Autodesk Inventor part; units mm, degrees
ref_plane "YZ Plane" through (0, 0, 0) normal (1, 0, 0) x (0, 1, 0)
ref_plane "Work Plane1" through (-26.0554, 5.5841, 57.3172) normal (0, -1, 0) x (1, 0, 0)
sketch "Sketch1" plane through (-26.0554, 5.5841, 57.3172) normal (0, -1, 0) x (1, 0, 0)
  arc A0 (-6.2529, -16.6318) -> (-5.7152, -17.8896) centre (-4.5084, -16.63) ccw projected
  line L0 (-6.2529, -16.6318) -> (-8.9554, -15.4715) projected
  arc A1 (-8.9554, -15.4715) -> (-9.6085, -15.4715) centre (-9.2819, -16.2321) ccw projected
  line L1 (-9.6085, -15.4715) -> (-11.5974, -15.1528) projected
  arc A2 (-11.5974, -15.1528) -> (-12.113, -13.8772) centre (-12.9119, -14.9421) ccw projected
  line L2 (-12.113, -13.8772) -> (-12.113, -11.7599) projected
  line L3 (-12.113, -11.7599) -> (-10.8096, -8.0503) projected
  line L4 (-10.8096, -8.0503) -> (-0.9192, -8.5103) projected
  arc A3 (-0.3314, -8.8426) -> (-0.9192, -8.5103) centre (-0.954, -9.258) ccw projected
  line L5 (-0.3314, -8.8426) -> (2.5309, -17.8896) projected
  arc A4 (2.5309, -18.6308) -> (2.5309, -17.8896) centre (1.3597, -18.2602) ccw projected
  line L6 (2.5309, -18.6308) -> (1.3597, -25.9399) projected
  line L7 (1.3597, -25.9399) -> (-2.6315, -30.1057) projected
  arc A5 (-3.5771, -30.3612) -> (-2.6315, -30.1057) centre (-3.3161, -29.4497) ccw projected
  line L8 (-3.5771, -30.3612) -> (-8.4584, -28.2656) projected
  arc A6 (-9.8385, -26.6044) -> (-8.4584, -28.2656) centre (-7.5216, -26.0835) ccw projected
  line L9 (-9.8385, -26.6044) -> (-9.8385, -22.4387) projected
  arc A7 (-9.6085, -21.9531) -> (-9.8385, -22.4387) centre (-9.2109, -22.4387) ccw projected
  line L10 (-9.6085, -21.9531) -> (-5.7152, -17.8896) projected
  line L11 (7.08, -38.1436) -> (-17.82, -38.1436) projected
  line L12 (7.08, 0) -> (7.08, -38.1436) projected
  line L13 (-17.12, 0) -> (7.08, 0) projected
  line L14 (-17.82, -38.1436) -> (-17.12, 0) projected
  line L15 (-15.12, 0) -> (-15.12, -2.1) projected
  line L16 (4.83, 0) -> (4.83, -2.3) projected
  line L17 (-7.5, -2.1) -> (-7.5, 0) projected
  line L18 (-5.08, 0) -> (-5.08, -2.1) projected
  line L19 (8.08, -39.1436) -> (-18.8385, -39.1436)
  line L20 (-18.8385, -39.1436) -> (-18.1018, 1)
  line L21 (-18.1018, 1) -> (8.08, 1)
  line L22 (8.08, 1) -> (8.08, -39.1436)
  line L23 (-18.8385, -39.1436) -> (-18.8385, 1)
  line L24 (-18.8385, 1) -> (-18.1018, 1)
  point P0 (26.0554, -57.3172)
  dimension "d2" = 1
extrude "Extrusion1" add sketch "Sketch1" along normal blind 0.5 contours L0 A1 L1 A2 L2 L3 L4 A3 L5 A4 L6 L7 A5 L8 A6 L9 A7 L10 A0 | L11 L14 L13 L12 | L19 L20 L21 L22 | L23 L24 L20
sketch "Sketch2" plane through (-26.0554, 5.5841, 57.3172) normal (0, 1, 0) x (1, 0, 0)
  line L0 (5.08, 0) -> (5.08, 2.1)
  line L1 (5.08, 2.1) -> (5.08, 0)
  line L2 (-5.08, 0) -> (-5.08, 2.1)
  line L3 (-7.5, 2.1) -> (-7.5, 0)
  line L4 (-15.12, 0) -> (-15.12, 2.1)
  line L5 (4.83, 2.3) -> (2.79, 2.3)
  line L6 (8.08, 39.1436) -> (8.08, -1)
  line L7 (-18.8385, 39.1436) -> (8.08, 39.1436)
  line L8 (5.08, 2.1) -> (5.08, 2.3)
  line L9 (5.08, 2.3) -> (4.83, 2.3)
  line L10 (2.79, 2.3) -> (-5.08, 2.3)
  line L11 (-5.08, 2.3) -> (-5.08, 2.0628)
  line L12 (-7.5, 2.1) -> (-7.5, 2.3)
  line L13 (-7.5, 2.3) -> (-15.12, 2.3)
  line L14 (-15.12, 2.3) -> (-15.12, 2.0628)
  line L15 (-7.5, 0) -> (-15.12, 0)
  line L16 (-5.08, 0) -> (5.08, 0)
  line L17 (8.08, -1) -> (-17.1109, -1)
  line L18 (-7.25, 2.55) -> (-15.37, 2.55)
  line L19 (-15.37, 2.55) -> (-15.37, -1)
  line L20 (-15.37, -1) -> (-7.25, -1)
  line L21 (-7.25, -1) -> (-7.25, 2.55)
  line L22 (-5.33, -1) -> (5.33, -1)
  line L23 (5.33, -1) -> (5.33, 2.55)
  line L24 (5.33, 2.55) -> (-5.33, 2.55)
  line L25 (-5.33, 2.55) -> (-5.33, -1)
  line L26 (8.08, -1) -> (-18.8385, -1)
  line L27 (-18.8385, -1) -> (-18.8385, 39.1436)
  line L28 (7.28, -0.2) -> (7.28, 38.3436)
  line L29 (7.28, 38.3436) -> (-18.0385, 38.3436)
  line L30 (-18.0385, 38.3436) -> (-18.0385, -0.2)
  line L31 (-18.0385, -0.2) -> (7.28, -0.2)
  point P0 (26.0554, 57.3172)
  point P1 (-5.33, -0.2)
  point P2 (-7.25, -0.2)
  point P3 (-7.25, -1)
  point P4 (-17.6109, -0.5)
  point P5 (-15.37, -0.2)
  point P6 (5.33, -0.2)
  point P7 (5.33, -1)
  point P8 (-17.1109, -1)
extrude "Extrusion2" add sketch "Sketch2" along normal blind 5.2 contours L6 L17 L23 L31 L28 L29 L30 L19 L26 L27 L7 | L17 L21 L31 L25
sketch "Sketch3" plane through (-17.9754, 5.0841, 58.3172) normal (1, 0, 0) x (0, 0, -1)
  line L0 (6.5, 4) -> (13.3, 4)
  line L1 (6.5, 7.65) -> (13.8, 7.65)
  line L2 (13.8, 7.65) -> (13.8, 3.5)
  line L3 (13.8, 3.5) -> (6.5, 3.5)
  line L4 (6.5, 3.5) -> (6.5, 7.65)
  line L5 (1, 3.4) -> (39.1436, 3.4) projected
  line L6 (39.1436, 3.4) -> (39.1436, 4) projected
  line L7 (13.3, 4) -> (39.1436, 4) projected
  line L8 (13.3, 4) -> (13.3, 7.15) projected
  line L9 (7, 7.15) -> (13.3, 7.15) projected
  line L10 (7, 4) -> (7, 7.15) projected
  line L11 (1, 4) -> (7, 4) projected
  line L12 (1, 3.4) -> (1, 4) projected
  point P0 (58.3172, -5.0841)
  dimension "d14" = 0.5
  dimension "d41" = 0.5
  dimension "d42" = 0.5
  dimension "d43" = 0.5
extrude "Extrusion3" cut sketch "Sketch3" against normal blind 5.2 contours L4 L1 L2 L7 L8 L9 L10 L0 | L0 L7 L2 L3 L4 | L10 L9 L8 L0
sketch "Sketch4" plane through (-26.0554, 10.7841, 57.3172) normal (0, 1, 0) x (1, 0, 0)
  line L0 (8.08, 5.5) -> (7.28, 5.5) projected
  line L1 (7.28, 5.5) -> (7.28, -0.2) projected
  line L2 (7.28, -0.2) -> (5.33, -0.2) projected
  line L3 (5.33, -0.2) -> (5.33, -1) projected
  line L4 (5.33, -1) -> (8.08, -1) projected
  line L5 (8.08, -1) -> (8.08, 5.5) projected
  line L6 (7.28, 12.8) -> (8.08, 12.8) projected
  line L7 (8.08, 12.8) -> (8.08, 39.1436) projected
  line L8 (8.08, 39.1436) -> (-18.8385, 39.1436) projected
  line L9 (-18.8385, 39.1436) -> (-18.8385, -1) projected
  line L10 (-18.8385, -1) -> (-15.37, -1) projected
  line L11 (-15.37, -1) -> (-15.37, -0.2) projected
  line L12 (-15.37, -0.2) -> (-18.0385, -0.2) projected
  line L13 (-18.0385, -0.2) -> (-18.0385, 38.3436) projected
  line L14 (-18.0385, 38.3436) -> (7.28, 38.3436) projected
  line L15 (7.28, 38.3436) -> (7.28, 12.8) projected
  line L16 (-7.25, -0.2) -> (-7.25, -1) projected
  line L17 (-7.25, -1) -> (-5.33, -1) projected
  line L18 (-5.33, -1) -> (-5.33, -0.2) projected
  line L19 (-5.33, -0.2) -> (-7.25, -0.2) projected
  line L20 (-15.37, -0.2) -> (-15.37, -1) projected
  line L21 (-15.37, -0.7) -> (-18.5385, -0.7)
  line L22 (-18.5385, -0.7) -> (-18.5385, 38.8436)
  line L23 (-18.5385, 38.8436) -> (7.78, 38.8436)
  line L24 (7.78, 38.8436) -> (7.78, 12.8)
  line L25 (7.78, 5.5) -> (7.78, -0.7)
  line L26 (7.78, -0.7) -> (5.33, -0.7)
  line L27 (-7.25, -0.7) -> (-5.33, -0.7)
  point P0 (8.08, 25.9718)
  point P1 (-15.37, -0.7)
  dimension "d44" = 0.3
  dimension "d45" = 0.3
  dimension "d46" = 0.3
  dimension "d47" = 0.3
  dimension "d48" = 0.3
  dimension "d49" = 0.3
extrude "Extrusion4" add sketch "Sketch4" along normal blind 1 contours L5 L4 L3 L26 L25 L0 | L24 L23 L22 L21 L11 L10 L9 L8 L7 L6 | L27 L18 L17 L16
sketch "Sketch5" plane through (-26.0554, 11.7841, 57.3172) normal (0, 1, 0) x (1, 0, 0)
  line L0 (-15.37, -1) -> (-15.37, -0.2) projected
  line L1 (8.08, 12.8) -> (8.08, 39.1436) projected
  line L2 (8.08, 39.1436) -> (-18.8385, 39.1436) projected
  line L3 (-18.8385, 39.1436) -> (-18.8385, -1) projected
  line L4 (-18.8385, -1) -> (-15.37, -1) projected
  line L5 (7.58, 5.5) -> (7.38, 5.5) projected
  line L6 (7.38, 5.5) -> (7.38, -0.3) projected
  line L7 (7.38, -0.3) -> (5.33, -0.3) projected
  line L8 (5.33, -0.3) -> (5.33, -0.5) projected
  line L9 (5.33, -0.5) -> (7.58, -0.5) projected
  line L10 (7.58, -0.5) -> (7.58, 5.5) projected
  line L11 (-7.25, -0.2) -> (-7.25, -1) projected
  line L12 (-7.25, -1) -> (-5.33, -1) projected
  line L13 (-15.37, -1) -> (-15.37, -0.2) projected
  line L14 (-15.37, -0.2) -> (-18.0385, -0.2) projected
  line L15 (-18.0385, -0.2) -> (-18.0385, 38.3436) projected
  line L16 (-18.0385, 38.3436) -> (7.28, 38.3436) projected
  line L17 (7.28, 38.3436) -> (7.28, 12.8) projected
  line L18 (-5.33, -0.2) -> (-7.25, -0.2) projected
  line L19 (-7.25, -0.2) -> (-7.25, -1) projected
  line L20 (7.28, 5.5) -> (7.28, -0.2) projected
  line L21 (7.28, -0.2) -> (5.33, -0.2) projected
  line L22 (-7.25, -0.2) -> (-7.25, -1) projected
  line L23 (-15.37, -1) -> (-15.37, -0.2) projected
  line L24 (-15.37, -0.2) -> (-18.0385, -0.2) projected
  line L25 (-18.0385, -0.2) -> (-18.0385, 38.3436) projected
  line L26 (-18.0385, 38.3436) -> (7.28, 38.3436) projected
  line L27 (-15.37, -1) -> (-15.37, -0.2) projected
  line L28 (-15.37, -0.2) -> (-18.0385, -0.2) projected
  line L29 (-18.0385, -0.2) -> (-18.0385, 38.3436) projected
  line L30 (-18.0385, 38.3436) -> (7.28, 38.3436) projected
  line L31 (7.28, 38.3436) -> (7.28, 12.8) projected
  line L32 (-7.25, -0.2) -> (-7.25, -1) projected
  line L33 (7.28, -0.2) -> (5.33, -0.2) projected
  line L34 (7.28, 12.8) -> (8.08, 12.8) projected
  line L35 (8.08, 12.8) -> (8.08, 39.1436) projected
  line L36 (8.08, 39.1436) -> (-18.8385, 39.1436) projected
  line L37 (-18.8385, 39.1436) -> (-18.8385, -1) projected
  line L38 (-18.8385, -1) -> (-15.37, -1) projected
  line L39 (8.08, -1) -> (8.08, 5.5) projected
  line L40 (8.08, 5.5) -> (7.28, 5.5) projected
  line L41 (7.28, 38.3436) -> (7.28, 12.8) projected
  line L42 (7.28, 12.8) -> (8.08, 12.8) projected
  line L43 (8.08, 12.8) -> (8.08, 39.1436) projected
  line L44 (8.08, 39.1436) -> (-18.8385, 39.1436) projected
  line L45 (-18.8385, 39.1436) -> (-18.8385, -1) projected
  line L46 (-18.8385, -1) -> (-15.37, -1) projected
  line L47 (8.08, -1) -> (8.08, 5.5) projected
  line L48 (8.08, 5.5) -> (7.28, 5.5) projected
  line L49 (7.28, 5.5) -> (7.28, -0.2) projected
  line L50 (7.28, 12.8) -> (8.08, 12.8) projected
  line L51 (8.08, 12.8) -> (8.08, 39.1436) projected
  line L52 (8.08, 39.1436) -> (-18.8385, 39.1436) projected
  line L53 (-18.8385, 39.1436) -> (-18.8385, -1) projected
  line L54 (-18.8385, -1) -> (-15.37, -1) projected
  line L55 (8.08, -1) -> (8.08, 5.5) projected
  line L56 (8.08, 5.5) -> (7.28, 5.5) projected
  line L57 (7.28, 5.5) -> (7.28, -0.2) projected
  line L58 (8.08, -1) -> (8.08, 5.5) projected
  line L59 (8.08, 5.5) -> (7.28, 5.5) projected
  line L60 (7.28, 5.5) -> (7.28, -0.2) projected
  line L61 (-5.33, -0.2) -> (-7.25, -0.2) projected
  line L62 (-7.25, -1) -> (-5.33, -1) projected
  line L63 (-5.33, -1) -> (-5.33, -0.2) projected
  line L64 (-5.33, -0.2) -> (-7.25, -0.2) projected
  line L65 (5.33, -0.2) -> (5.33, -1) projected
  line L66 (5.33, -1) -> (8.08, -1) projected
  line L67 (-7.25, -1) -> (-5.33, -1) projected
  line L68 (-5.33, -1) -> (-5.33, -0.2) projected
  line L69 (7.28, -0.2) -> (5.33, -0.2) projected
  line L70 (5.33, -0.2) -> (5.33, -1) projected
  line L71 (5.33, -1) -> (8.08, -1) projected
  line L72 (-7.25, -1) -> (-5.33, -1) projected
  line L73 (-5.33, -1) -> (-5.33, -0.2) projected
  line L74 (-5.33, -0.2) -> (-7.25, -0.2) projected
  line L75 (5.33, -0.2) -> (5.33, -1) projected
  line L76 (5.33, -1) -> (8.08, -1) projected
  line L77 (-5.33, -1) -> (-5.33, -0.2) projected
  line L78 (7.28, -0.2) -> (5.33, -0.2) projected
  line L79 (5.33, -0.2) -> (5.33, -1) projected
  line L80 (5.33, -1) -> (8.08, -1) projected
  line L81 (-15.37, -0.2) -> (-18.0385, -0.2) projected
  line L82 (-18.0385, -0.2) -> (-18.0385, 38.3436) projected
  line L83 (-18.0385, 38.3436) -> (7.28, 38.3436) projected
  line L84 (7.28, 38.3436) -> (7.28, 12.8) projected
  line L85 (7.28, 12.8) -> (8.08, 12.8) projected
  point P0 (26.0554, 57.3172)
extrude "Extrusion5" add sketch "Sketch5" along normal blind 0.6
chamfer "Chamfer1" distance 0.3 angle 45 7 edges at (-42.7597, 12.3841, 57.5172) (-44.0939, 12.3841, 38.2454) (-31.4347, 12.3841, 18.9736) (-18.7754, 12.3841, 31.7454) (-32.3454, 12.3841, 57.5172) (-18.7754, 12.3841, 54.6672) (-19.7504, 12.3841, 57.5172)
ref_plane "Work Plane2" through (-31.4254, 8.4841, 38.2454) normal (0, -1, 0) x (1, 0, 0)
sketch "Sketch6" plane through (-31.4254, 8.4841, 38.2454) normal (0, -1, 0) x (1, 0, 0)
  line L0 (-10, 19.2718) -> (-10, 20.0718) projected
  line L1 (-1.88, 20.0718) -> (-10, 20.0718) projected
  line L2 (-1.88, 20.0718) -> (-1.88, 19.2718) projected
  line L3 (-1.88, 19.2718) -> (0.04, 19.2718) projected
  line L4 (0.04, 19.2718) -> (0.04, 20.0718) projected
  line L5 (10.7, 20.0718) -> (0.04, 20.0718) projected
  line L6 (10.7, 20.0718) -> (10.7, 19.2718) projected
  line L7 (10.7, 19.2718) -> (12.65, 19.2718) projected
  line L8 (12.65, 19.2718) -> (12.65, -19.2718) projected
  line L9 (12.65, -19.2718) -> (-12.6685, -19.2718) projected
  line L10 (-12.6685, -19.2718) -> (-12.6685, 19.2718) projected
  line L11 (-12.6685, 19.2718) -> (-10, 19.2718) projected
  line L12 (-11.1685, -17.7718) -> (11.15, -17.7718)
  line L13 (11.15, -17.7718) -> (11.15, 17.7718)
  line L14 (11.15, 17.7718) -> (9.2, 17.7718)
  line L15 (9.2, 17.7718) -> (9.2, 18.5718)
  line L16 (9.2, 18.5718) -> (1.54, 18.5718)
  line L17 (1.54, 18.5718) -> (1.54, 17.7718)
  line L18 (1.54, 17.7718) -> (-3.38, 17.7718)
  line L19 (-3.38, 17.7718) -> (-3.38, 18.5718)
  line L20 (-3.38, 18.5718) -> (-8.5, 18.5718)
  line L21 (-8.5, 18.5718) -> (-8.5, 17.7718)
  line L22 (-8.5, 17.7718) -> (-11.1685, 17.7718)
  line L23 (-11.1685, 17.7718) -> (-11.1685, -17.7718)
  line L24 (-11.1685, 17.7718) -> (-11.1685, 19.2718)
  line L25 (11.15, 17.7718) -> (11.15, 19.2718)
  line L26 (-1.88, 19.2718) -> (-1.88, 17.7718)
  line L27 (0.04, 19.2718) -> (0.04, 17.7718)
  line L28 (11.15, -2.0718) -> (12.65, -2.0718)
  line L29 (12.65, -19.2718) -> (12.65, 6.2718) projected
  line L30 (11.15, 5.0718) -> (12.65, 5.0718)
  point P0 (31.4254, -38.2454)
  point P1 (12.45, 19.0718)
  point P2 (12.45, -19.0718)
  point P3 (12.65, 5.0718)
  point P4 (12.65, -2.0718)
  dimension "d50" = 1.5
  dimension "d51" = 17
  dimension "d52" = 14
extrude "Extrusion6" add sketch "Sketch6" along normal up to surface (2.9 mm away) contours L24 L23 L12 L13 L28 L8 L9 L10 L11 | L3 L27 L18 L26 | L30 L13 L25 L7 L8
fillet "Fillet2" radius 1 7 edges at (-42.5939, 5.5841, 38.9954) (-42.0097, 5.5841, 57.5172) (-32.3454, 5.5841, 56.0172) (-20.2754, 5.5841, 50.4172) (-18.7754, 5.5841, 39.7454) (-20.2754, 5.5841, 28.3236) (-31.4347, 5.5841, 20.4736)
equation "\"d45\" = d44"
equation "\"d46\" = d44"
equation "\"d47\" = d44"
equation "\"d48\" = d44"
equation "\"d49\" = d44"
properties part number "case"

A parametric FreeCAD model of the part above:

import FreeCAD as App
import Part
import Sketcher
Q = App.Units.Quantity


def edges_at(feature, points):
    """Names of the edges that pass closest to the given points."""
    edges = feature.Shape.Edges
    near = lambda p: min(range(len(edges)), key=lambda i: edges[i].distToShape(Part.Vertex(*p))[0])
    return sorted({f"Edge{near(p) + 1}" for p in points})


def add_polygon(sketch, points):
    """Adds a closed chain of lines whose ends are joined by coincident constraints."""
    first, n = sketch.GeometryCount, len(points)
    for a, b in zip(points, points[1:] + points[:1]):
        sketch.addGeometry(Part.LineSegment(App.Vector(*a, 0), App.Vector(*b, 0)), False)
    for i in range(n):
        sketch.addConstraint(Sketcher.Constraint("Coincident", first + i, 2, first + (i + 1) % n, 1))

doc = App.newDocument("Part")
body = doc.addObject("PartDesign::Body", "Body")

# Sketch on XZ plane
sketch1 = doc.addObject("Sketcher::SketchObject", "Sketch")
body.addObject(sketch1)
sketch1.AttachmentSupport = (doc.XZ_Plane, [""])
sketch1.MapMode = "FlatFace"
sketch1.AttachmentOffset = App.Placement(App.Vector(0, 0, -5.5841), App.Rotation())
add_polygon(sketch1, [(-45, 18), (-18, 18), (-18, 58), (-45, 58)])  # lines 0-3
sketch1.addConstraint(Sketcher.Constraint("Horizontal", 0))
sketch1.addConstraint(Sketcher.Constraint("Vertical", 1))
sketch1.addConstraint(Sketcher.Constraint("Horizontal", 2))
sketch1.addConstraint(Sketcher.Constraint("Vertical", 3))
sketch1.addConstraint(Sketcher.Constraint("DistanceX", 0, 1, 0, 2, Q("26.9185 mm")))
sketch1.addConstraint(Sketcher.Constraint("DistanceY", 1, 1, 1, 2, Q("40.1436 mm")))
sketch1.addConstraint(Sketcher.Constraint("DistanceX", 2, 2, -1, 1, Q("44.894 mm")))
sketch1.addConstraint(Sketcher.Constraint("DistanceY", -1, 1, 0, 2, Q("18.1736 mm")))
pad1 = doc.addObject("PartDesign::Pad", "Pad")
body.addObject(pad1)
pad1.Profile = sketch1
pad1.Length = 0.5

# Sketch on XZ plane
sketch2 = doc.addObject("Sketcher::SketchObject", "Sketch001")
body.addObject(sketch2)
sketch2.AttachmentSupport = (doc.XZ_Plane, [""])
sketch2.MapMode = "FlatFace"
sketch2.AttachmentOffset = App.Placement(App.Vector(0, 0, -5.5841), App.Rotation())
add_polygon(sketch2, [(-18, 58.3), (-18, 18.2), (-44.9, 18.2), (-44.9, 58.3), (-41.4, 58.3), (-41.4, 57.5), (-44.1, 57.5), (-44.1, 19), (-18.8, 19), (-18.8, 57.5), (-20.7, 57.5), (-20.7, 58.3)])  # lines 0-11
add_polygon(sketch2, [(-33.3, 58.3), (-31.4, 58.3), (-31.4, 57.5), (-33.3, 57.5)])  # lines 12-15
sketch2.addConstraint(Sketcher.Constraint("Vertical", 0))
sketch2.addConstraint(Sketcher.Constraint("Horizontal", 1))
sketch2.addConstraint(Sketcher.Constraint("Vertical", 2))
sketch2.addConstraint(Sketcher.Constraint("Horizontal", 3))
sketch2.addConstraint(Sketcher.Constraint("Vertical", 4))
sketch2.addConstraint(Sketcher.Constraint("Horizontal", 5))
sketch2.addConstraint(Sketcher.Constraint("Vertical", 6))
sketch2.addConstraint(Sketcher.Constraint("Horizontal", 7))
sketch2.addConstraint(Sketcher.Constraint("Vertical", 8))
sketch2.addConstraint(Sketcher.Constraint("Horizontal", 9))
sketch2.addConstraint(Sketcher.Constraint("Vertical", 10))
sketch2.addConstraint(Sketcher.Constraint("Horizontal", 11))
sketch2.addConstraint(Sketcher.Constraint("Horizontal", 12))
sketch2.addConstraint(Sketcher.Constraint("Vertical", 13))
sketch2.addConstraint(Sketcher.Constraint("Horizontal", 14))
sketch2.addConstraint(Sketcher.Constraint("Vertical", 15))
sketch2.addConstraint(Sketcher.Constraint("Horizontal", 5, 2, 8, 2))
sketch2.addConstraint(Sketcher.Constraint("Horizontal", 3, 2, 10, 2))
sketch2.addConstraint(Sketcher.Constraint("Horizontal", 11, 2, 12, 2))
sketch2.addConstraint(Sketcher.Constraint("Horizontal", 9, 2, 13, 2))
sketch2.addConstraint(Sketcher.Constraint("DistanceY", 4, 2, 4, 1, Q("0.8 mm")))
sketch2.addConstraint(Sketcher.Constraint("DistanceX", 9, 2, 9, 1, Q("1.95 mm")))
sketch2.addConstraint(Sketcher.Constraint("DistanceX", 11, 1, 11, 2, Q("2.75 mm")))
sketch2.addConstraint(Sketcher.Constraint("DistanceX", 12, 1, 12, 2, Q("1.92 mm")))
sketch2.addConstraint(Sketcher.Constraint("DistanceX", 2, 2, 5, 2, Q("0.8 mm")))
sketch2.addConstraint(Sketcher.Constraint("DistanceY", 1, 2, 6, 2, Q("0.8 mm")))
sketch2.addConstraint(Sketcher.Constraint("DistanceX", 4, 2, 9, 2, Q("20.7 mm")))
sketch2.addConstraint(Sketcher.Constraint("DistanceX", 3, 2, 12, 2, Q("10.04 mm")))
sketch2.addConstraint(Sketcher.Constraint("DistanceX", 1, 2, 1, 1, Q("26.9185 mm")))
sketch2.addConstraint(Sketcher.Constraint("DistanceY", 0, 2, 0, 1, Q("40.1436 mm")))
sketch2.addConstraint(Sketcher.Constraint("DistanceX", 1, 2, -1, 1, Q("44.894 mm")))
sketch2.addConstraint(Sketcher.Constraint("DistanceY", -1, 1, 0, 2, Q("18.1736 mm")))
pad2 = doc.addObject("PartDesign::Pad", "Pad001")
body.addObject(pad2)
pad2.Profile = sketch2
pad2.Length = 5.2
pad2.Reversed = True

# Sketch on YZ plane
sketch3 = doc.addObject("Sketcher::SketchObject", "Sketch002")
body.addObject(sketch3)
sketch3.AttachmentSupport = (doc.YZ_Plane, [""])
sketch3.MapMode = "FlatFace"
sketch3.AttachmentOffset = App.Placement(App.Vector(0, 0, -17.9754), App.Rotation())
add_polygon(sketch3, [(12.7, 51.8), (8.6, 51.8), (8.6, 44.5), (12.7, 44.5)])  # lines 0-3
sketch3.addConstraint(Sketcher.Constraint("Horizontal", 0))
sketch3.addConstraint(Sketcher.Constraint("Vertical", 1))
sketch3.addConstraint(Sketcher.Constraint("Horizontal", 2))
sketch3.addConstraint(Sketcher.Constraint("Vertical", 3))
sketch3.addConstraint(Sketcher.Constraint("DistanceY", 1, 2, 1, 1, Q("7.3 mm")))
sketch3.addConstraint(Sketcher.Constraint("DistanceX", 0, 2, 0, 1, Q("4.15 mm")))
sketch3.addConstraint(Sketcher.Constraint("DistanceX", -1, 1, 0, 2, Q("8.584 mm")))
sketch3.addConstraint(Sketcher.Constraint("DistanceY", -1, 1, 0, 2, Q("51.8172 mm")))
pocket1 = doc.addObject("PartDesign::Pocket", "Pocket")
body.addObject(pocket1)
pocket1.Profile = sketch3
pocket1.Length = 5.2

# Sketch on XZ plane
sketch4 = doc.addObject("Sketcher::SketchObject", "Sketch003")
body.addObject(sketch4)
sketch4.AttachmentSupport = (doc.XZ_Plane, [""])
sketch4.MapMode = "FlatFace"
sketch4.AttachmentOffset = App.Placement(App.Vector(0, 0, -10.7841), App.Rotation())
add_polygon(sketch4, [(-17.98, 58.32), (-17.98, 51.82), (-18.28, 51.82), (-18.28, 58.02), (-20.73, 58.02), (-20.73, 58.32)])  # lines 0-5
add_polygon(sketch4, [(-18.28, 18.47), (-18.28, 44.52), (-17.98, 44.52), (-17.98, 18.17), (-44.89, 18.17), (-44.89, 58.32), (-41.43, 58.32), (-41.43, 58.02), (-44.59, 58.02), (-44.59, 18.47)])  # lines 6-15
add_polygon(sketch4, [(-31.39, 58.02), (-33.31, 58.02), (-33.31, 58.32), (-31.39, 58.32)])  # lines 16-19
sketch4.addConstraint(Sketcher.Constraint("Vertical", 0))
sketch4.addConstraint(Sketcher.Constraint("Horizontal", 1))
sketch4.addConstraint(Sketcher.Constraint("Vertical", 2))
sketch4.addConstraint(Sketcher.Constraint("Horizontal", 3))
sketch4.addConstraint(Sketcher.Constraint("Vertical", 4))
sketch4.addConstraint(Sketcher.Constraint("Horizontal", 5))
sketch4.addConstraint(Sketcher.Constraint("Vertical", 6))
sketch4.addConstraint(Sketcher.Constraint("Horizontal", 7))
sketch4.addConstraint(Sketcher.Constraint("Vertical", 8))
sketch4.addConstraint(Sketcher.Constraint("Horizontal", 9))
sketch4.addConstraint(Sketcher.Constraint("Vertical", 10))
sketch4.addConstraint(Sketcher.Constraint("Horizontal", 11))
sketch4.addConstraint(Sketcher.Constraint("Vertical", 12))
sketch4.addConstraint(Sketcher.Constraint("Horizontal", 13))
sketch4.addConstraint(Sketcher.Constraint("Vertical", 14))
sketch4.addConstraint(Sketcher.Constraint("Horizontal", 15))
sketch4.addConstraint(Sketcher.Constraint("Horizontal", 16))
sketch4.addConstraint(Sketcher.Constraint("Vertical", 17))
sketch4.addConstraint(Sketcher.Constraint("Horizontal", 18))
sketch4.addConstraint(Sketcher.Constraint("Vertical", 19))
sketch4.addConstraint(Sketcher.Constraint("Horizontal", 5, 2, 10, 2))
sketch4.addConstraint(Sketcher.Constraint("Horizontal", 3, 2, 12, 2))
sketch4.addConstraint(Sketcher.Constraint("Horizontal", 13, 2, 16, 2))
sketch4.addConstraint(Sketcher.Constraint("Horizontal", 11, 2, 17, 2))
sketch4.addConstraint(Sketcher.Constraint("Vertical", 2, 2, 6, 2))
sketch4.addConstraint(Sketcher.Constraint("Vertical", 5, 2, 7, 2))
sketch4.addConstraint(Sketcher.Constraint("Equal", 7, 4))
sketch4.addConstraint(Sketcher.Constraint("DistanceX", 1, 2, 1, 1, Q("0.3 mm")))
sketch4.addConstraint(Sketcher.Constraint("DistanceX", 10, 2, 13, 2, Q("0.3 mm")))
sketch4.addConstraint(Sketcher.Constraint("DistanceY", 9, 2, 14, 2, Q("0.3 mm")))
sketch4.addConstraint(Sketcher.Constraint("DistanceY", 0, 2, 0, 1, Q("6.5 mm")))
sketch4.addConstraint(Sketcher.Constraint("DistanceX", 3, 2, 3, 1, Q("2.45 mm")))
sketch4.addConstraint(Sketcher.Constraint("DistanceX", 16, 2, 16, 1, Q("1.92 mm")))
sketch4.addConstraint(Sketcher.Constraint("DistanceY", 6, 2, 1, 2, Q("7.3 mm")))
sketch4.addConstraint(Sketcher.Constraint("DistanceX", 11, 2, 4, 2, Q("20.7 mm")))
sketch4.addConstraint(Sketcher.Constraint("DistanceX", 12, 2, 16, 2, Q("8.12 mm")))
sketch4.addConstraint(Sketcher.Constraint("DistanceX", 9, 2, 9, 1, Q("26.9185 mm")))
sketch4.addConstraint(Sketcher.Constraint("DistanceY", 6, 1, 6, 2, Q("26.0436 mm")))
sketch4.addConstraint(Sketcher.Constraint("DistanceX", 9, 2, -1, 1, Q("44.894 mm")))
sketch4.addConstraint(Sketcher.Constraint("DistanceY", -1, 1, 0, 2, Q("51.8172 mm")))
pad3 = doc.addObject("PartDesign::Pad", "Pad002")
body.addObject(pad3)
pad3.Profile = sketch4
pad3.Length = 1
pad3.Reversed = True

# Sketch on XZ plane
sketch5 = doc.addObject("Sketcher::SketchObject", "Sketch004")
body.addObject(sketch5)
sketch5.AttachmentSupport = (doc.XZ_Plane, [""])
sketch5.MapMode = "FlatFace"
sketch5.AttachmentOffset = App.Placement(App.Vector(0, 0, -11.7841), App.Rotation())
add_polygon(sketch5, [(-44.9, 58.3), (-41.4, 58.3), (-41.4, 57.5), (-44.1, 57.5), (-44.1, 19), (-18.8, 19), (-18.8, 44.5), (-18, 44.5), (-18, 18.2), (-44.9, 18.2)])  # lines 0-9
add_polygon(sketch5, [(-20.7, 58.3), (-18, 58.3), (-18, 51.8), (-18.8, 51.8), (-18.8, 57.5), (-20.7, 57.5)])  # lines 10-15
add_polygon(sketch5, [(-31.4, 57.5), (-33.3, 57.5), (-33.3, 58.3), (-31.4, 58.3)])  # lines 16-19
sketch5.addConstraint(Sketcher.Constraint("Horizontal", 0))
sketch5.addConstraint(Sketcher.Constraint("Vertical", 1))
sketch5.addConstraint(Sketcher.Constraint("Horizontal", 2))
sketch5.addConstraint(Sketcher.Constraint("Vertical", 3))
sketch5.addConstraint(Sketcher.Constraint("Horizontal", 4))
sketch5.addConstraint(Sketcher.Constraint("Vertical", 5))
sketch5.addConstraint(Sketcher.Constraint("Horizontal", 6))
sketch5.addConstraint(Sketcher.Constraint("Vertical", 7))
sketch5.addConstraint(Sketcher.Constraint("Horizontal", 8))
sketch5.addConstraint(Sketcher.Constraint("Vertical", 9))
sketch5.addConstraint(Sketcher.Constraint("Horizontal", 10))
sketch5.addConstraint(Sketcher.Constraint("Vertical", 11))
sketch5.addConstraint(Sketcher.Constraint("Horizontal", 12))
sketch5.addConstraint(Sketcher.Constraint("Vertical", 13))
sketch5.addConstraint(Sketcher.Constraint("Horizontal", 14))
sketch5.addConstraint(Sketcher.Constraint("Vertical", 15))
sketch5.addConstraint(Sketcher.Constraint("Horizontal", 16))
sketch5.addConstraint(Sketcher.Constraint("Vertical", 17))
sketch5.addConstraint(Sketcher.Constraint("Horizontal", 18))
sketch5.addConstraint(Sketcher.Constraint("Vertical", 19))
sketch5.addConstraint(Sketcher.Constraint("Horizontal", 9, 2, 10, 2))
sketch5.addConstraint(Sketcher.Constraint("Horizontal", 2, 2, 13, 2))
sketch5.addConstraint(Sketcher.Constraint("Horizontal", 14, 2, 16, 2))
sketch5.addConstraint(Sketcher.Constraint("Horizontal", 15, 2, 17, 2))
sketch5.addConstraint(Sketcher.Constraint("Vertical", 7, 2, 10, 2))
sketch5.addConstraint(Sketcher.Constraint("Vertical", 5, 2, 12, 2))
sketch5.addConstraint(Sketcher.Constraint("Equal", 12, 1))
sketch5.addConstraint(Sketcher.Constraint("DistanceX", 6, 1, 6, 2, Q("0.8 mm")))
sketch5.addConstraint(Sketcher.Constraint("DistanceY", 11, 2, 11, 1, Q("6.5 mm")))
sketch5.addConstraint(Sketcher.Constraint("DistanceY", 5, 2, 1, 2, Q("13 mm")))
sketch5.addConstraint(Sketcher.Constraint("DistanceX", 10, 1, 10, 2, Q("2.75 mm")))
sketch5.addConstraint(Sketcher.Constraint("DistanceX", 16, 2, 16, 1, Q("1.92 mm")))
sketch5.addConstraint(Sketcher.Constraint("DistanceY", 7, 2, 4, 2, Q("0.8 mm")))
sketch5.addConstraint(Sketcher.Constraint("DistanceX", 8, 2, 3, 2, Q("0.8 mm")))
sketch5.addConstraint(Sketcher.Constraint("DistanceX", 1, 2, 4, 2, Q("22.65 mm")))
sketch5.addConstraint(Sketcher.Constraint("DistanceX", 1, 2, 16, 2, Q("8.12 mm")))
sketch5.addConstraint(Sketcher.Constraint("DistanceX", 0, 1, 0, 2, Q("3.4685 mm")))
sketch5.addConstraint(Sketcher.Constraint("DistanceY", 3, 2, 3, 1, Q("38.5436 mm")))
sketch5.addConstraint(Sketcher.Constraint("DistanceX", 2, 2, -1, 1, Q("44.094 mm")))
sketch5.addConstraint(Sketcher.Constraint("DistanceY", -1, 1, 0, 2, Q("58.3172 mm")))
pad4 = doc.addObject("PartDesign::Pad", "Pad003")
body.addObject(pad4)
pad4.Profile = sketch5
pad4.Length = 0.6
pad4.Reversed = True
doc.recompute()

chamfer = doc.addObject("PartDesign::Chamfer", "Chamfer")
body.addObject(chamfer)
chamfer.Base = (pad4, edges_at(pad4, [
    (-42.76, 12.384, 57.517),
    (-44.094, 12.384, 38.245),
    (-31.435, 12.384, 18.974),
    (-18.775, 12.384, 31.745),
    (-32.345, 12.384, 57.517),
    (-18.775, 12.384, 54.667),
    (-19.75, 12.384, 57.517),
]))
chamfer.Size = 0.3

# Sketch on XZ plane
sketch6 = doc.addObject("Sketcher::SketchObject", "Sketch005")
body.addObject(sketch6)
sketch6.AttachmentSupport = (doc.XZ_Plane, [""])
sketch6.MapMode = "FlatFace"
sketch6.AttachmentOffset = App.Placement(App.Vector(0, 0, -8.4841), App.Rotation())
add_polygon(sketch6, [(-42.6, 20.5), (-42.6, 57.5), (-44.1, 57.5), (-44.1, 19), (-18.8, 19), (-18.8, 36.2), (-20.3, 36.2), (-20.3, 20.5)])  # lines 0-7
add_polygon(sketch6, [(-31.4, 57.5), (-33.3, 57.5), (-33.3, 56), (-31.4, 56)])  # lines 8-11
add_polygon(sketch6, [(-20.3, 43.3), (-18.8, 43.3), (-18.8, 57.5), (-20.3, 57.5)])  # lines 12-15
sketch6.addConstraint(Sketcher.Constraint("Vertical", 0))
sketch6.addConstraint(Sketcher.Constraint("Horizontal", 1))
sketch6.addConstraint(Sketcher.Constraint("Vertical", 2))
sketch6.addConstraint(Sketcher.Constraint("Horizontal", 3))
sketch6.addConstraint(Sketcher.Constraint("Vertical", 4))
sketch6.addConstraint(Sketcher.Constraint("Horizontal", 5))
sketch6.addConstraint(Sketcher.Constraint("Vertical", 6))
sketch6.addConstraint(Sketcher.Constraint("Horizontal", 7))
sketch6.addConstraint(Sketcher.Constraint("Horizontal", 8))
sketch6.addConstraint(Sketcher.Constraint("Vertical", 9))
sketch6.addConstraint(Sketcher.Constraint("Horizontal", 10))
sketch6.addConstraint(Sketcher.Constraint("Vertical", 11))
sketch6.addConstraint(Sketcher.Constraint("Horizontal", 12))
sketch6.addConstraint(Sketcher.Constraint("Vertical", 13))
sketch6.addConstraint(Sketcher.Constraint("Horizontal", 14))
sketch6.addConstraint(Sketcher.Constraint("Vertical", 15))
sketch6.addConstraint(Sketcher.Constraint("Horizontal", 1, 2, 8, 2))
sketch6.addConstraint(Sketcher.Constraint("Horizontal", 11, 2, 13, 2))
sketch6.addConstraint(Sketcher.Constraint("Vertical", 4, 2, 12, 2))
sketch6.addConstraint(Sketcher.Constraint("Vertical", 6, 2, 14, 2))
sketch6.addConstraint(Sketcher.Constraint("Equal", 1, 5))
sketch6.addConstraint(Sketcher.Constraint("Equal", 14, 9))
sketch6.addConstraint(Sketcher.Constraint("DistanceX", 1, 2, 1, 1, Q("1.5 mm")))
sketch6.addConstraint(Sketcher.Constraint("DistanceY", 3, 2, 6, 2, Q("1.5 mm")))
sketch6.addConstraint(Sketcher.Constraint("DistanceY", 4, 1, 4, 2, Q("17.2 mm")))
sketch6.addConstraint(Sketcher.Constraint("DistanceY", 13, 1, 13, 2, Q("14.2 mm")))
sketch6.addConstraint(Sketcher.Constraint("DistanceX", 8, 2, 8, 1, Q("1.92 mm")))
sketch6.addConstraint(Sketcher.Constraint("DistanceX", 8, 2, 5, 2, Q("13.03 mm")))
sketch6.addConstraint(Sketcher.Constraint("DistanceX", 3, 1, 3, 2, Q("25.3185 mm")))
sketch6.addConstraint(Sketcher.Constraint("DistanceY", 0, 1, 0, 2, Q("37.0436 mm")))
sketch6.addConstraint(Sketcher.Constraint("DistanceX", 0, 2, -1, 1, Q("42.594 mm")))
sketch6.addConstraint(Sketcher.Constraint("DistanceY", -1, 1, 0, 2, Q("57.5172 mm")))
pad5 = doc.addObject("PartDesign::Pad", "Pad004")
body.addObject(pad5)
pad5.Profile = sketch6
pad5.Length = 2.9
doc.recompute()

fillet = doc.addObject("PartDesign::Fillet", "Fillet")
body.addObject(fillet)
fillet.Base = (pad5, edges_at(pad5, [
    (-42.594, 5.584, 38.995),
    (-42.01, 5.584, 57.517),
    (-32.345, 5.584, 56.017),
    (-20.275, 5.584, 50.417),
    (-18.775, 5.584, 39.745),
    (-20.275, 5.584, 28.324),
    (-31.435, 5.584, 20.474),
]))
fillet.Radius = 1

doc.recompute()
